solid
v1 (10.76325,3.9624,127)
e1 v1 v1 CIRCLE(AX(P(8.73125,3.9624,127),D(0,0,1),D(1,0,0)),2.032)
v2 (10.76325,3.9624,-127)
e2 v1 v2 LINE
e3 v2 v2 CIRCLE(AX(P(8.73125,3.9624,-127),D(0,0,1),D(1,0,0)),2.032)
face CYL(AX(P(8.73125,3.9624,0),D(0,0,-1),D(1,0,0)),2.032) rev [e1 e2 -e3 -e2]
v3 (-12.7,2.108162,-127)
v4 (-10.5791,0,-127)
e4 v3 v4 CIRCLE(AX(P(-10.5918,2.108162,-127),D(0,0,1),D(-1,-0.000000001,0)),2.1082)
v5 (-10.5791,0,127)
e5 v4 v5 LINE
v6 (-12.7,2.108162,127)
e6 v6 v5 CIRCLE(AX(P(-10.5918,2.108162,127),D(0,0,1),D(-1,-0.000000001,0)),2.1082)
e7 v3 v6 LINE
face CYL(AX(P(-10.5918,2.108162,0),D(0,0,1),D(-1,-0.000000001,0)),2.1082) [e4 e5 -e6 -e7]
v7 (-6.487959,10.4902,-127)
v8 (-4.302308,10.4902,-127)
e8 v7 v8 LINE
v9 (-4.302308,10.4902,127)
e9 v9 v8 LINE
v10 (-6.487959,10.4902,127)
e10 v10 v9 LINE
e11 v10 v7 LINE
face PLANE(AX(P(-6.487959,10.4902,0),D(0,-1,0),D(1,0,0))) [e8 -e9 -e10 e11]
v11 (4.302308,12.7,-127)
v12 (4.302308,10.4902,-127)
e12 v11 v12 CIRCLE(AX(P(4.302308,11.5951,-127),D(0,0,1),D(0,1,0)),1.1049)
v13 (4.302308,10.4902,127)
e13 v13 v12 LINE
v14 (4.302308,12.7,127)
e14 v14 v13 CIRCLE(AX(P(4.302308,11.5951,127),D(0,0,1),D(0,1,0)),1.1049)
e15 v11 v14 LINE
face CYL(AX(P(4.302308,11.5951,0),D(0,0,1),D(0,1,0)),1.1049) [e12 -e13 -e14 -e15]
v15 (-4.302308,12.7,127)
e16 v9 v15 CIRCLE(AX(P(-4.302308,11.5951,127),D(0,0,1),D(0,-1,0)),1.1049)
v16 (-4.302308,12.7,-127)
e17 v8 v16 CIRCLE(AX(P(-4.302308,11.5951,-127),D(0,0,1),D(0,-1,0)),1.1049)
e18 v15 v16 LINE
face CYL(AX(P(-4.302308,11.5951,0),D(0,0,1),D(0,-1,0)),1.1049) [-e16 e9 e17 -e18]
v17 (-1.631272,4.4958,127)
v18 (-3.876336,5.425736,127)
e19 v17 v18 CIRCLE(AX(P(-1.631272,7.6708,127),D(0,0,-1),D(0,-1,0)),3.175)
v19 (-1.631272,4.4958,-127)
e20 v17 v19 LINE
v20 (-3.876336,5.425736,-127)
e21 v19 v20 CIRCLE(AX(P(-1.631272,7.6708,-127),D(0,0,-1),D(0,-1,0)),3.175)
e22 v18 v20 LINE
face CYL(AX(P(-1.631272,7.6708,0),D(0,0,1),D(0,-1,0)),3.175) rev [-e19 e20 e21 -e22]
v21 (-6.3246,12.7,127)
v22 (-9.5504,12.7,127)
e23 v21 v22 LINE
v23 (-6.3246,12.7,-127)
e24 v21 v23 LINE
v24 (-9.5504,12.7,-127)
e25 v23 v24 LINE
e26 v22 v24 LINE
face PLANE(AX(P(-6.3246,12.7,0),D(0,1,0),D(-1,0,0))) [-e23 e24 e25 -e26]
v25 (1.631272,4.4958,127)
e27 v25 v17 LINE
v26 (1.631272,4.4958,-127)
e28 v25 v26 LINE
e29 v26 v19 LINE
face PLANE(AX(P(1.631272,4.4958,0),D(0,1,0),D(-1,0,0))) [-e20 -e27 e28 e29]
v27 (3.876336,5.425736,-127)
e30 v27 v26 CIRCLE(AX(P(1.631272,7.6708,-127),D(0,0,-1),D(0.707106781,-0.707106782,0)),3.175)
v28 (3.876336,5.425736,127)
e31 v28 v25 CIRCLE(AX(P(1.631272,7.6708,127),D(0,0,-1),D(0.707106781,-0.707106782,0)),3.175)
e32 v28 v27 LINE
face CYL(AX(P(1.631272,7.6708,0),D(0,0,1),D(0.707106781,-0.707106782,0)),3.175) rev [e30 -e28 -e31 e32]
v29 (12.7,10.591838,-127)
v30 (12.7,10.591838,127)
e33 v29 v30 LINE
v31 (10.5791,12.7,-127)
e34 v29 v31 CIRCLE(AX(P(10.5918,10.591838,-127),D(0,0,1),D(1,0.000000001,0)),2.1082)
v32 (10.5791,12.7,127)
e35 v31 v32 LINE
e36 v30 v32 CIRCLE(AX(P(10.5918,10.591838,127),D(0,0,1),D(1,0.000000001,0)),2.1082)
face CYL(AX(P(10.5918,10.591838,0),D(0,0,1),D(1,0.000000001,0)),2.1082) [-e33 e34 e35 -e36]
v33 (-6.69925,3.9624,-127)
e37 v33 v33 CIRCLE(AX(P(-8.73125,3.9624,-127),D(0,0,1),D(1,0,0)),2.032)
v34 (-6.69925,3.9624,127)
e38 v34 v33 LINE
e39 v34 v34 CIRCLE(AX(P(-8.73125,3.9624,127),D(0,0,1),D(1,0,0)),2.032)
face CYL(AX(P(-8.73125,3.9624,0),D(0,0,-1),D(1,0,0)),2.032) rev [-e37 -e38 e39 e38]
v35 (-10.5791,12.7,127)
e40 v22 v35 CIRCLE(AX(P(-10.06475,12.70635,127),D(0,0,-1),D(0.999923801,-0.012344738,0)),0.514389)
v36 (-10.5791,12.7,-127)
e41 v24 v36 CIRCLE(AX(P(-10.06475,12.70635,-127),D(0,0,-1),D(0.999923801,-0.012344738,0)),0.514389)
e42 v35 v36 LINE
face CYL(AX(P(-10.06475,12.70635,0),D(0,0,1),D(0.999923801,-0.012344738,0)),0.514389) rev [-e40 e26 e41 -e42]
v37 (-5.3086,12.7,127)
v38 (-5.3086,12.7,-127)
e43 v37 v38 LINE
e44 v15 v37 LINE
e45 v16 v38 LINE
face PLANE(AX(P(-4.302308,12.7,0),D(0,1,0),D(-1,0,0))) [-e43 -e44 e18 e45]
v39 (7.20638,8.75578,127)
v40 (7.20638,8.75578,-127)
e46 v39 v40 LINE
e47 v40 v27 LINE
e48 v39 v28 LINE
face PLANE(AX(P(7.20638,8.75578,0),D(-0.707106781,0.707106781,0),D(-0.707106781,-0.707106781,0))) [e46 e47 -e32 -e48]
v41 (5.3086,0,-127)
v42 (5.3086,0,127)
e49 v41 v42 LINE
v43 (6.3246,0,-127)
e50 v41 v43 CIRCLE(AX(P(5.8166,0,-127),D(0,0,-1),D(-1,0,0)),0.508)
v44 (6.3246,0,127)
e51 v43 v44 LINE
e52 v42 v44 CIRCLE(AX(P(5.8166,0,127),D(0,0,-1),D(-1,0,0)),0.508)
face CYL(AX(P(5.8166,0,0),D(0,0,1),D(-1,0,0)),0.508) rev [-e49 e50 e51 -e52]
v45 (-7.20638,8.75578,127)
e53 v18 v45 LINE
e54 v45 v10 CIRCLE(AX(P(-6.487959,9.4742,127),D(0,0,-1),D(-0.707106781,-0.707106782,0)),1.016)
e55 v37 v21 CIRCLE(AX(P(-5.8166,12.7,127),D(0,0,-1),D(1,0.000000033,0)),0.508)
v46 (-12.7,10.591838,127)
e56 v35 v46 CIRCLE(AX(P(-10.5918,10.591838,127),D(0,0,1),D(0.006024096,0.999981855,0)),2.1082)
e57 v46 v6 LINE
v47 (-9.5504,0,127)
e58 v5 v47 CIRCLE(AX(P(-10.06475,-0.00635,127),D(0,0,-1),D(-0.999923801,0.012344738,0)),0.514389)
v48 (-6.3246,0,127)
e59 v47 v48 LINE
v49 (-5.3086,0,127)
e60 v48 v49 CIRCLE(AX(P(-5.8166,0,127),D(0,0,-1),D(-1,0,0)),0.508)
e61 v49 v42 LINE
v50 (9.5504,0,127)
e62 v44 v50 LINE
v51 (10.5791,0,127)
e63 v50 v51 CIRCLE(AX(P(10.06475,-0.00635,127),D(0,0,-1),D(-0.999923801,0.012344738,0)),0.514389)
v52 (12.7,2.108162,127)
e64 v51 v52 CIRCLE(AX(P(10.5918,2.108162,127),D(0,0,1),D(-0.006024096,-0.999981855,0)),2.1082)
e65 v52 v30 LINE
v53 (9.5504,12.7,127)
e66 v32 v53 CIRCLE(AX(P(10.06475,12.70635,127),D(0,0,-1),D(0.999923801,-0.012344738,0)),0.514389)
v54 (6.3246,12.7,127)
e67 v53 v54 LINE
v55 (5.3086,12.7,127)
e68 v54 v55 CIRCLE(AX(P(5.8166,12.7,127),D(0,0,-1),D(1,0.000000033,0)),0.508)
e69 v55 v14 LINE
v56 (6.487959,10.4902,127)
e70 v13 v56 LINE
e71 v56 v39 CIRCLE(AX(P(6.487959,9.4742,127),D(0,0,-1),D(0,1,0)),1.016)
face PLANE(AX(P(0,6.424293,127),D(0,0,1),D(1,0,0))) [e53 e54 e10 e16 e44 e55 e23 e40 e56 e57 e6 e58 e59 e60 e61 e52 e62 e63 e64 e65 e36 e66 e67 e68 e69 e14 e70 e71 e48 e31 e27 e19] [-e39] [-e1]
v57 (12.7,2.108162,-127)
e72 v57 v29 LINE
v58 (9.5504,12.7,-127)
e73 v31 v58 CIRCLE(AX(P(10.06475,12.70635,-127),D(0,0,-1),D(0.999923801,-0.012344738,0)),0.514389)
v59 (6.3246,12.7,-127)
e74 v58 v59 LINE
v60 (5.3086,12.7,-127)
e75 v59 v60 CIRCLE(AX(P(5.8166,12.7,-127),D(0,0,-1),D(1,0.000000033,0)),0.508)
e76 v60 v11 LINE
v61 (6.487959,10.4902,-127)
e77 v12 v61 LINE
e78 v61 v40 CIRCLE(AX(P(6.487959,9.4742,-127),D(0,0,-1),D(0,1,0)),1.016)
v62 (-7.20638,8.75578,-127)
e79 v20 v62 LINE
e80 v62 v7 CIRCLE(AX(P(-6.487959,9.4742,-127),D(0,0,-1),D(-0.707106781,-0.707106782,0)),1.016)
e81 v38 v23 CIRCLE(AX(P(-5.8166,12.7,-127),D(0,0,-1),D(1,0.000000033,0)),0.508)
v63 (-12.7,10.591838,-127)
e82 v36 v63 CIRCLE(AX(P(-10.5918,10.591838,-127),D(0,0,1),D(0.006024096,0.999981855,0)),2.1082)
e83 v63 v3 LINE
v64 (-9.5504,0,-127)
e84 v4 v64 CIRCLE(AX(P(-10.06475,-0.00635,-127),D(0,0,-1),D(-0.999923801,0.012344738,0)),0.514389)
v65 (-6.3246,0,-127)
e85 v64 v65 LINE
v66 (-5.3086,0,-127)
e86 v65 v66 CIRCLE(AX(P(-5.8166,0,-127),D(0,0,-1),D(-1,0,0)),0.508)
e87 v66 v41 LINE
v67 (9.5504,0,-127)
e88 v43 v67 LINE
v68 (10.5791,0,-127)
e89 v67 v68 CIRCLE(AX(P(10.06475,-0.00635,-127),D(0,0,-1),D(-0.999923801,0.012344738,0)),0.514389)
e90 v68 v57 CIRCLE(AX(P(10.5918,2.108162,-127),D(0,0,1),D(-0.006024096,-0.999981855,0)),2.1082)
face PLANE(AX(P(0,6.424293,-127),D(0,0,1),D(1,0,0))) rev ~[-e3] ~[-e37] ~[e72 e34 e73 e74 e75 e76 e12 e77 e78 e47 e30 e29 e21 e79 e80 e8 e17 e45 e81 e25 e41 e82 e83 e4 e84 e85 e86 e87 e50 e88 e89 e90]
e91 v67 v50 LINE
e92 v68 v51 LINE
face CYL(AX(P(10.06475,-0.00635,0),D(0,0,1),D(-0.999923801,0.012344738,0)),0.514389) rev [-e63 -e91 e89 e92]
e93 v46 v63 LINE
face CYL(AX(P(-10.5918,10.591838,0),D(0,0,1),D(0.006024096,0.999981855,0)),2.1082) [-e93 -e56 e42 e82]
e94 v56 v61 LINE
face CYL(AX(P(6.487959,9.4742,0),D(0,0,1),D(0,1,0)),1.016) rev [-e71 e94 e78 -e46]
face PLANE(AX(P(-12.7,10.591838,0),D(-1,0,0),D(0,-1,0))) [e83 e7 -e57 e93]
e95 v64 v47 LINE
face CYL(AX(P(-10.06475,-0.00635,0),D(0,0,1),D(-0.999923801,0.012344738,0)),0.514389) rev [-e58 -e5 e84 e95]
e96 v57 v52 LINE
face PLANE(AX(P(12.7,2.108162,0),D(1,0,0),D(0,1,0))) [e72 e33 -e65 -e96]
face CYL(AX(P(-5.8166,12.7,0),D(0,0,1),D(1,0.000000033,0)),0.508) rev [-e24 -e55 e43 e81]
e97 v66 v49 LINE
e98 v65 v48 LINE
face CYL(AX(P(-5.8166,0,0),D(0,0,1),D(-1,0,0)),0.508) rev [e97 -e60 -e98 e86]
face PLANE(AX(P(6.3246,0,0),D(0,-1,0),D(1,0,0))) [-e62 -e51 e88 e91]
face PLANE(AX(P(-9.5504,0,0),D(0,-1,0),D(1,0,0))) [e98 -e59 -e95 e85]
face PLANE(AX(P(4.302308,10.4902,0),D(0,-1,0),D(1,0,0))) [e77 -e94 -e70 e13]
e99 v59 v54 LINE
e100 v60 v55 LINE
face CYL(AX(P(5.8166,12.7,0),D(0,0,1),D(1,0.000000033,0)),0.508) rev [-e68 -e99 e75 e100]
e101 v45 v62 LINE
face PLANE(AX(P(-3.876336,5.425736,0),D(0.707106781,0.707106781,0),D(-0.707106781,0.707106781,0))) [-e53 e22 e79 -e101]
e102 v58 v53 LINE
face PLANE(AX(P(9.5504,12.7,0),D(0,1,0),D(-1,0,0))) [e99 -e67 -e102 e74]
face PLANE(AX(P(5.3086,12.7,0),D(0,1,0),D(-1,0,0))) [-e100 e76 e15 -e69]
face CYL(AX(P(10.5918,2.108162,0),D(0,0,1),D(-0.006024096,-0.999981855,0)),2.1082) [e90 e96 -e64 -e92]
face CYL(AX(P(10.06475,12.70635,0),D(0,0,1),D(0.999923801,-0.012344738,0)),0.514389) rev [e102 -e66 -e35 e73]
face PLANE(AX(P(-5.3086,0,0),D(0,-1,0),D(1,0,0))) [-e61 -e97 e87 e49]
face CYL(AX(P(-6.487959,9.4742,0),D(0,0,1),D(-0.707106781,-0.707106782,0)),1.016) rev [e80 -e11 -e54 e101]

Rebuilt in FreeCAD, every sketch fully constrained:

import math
import FreeCAD as App
import Part
import Sketcher
Q = App.Units.Quantity

doc = App.newDocument("Part")
body = doc.addObject("PartDesign::Body", "Body")

# Sketch on XY plane
sketch1 = doc.addObject("Sketcher::SketchObject", "Sketch")
body.addObject(sketch1)
sketch1.AttachmentSupport = (doc.XY_Plane, [""])
sketch1.MapMode = "FlatFace"
sketch1.addGeometry(Part.LineSegment(App.Vector(-12.7, 10.591838, 0), App.Vector(-12.7, 2.108162, 0)), False)
sketch1.addGeometry(Part.ArcOfCircle(Part.Circle(App.Vector(-10.5918, 2.108162, 0), App.Vector(0, 0, 1), 2.1082), math.radians(-180), math.radians(-89.654843)), False)
sketch1.addGeometry(Part.ArcOfCircle(Part.Circle(App.Vector(-10.06475, -0.00635, 0), App.Vector(0, 0, 1), 0.514389), math.radians(0.707319), math.radians(179.292681)), False)
sketch1.addGeometry(Part.LineSegment(App.Vector(-9.5504, 0, 0), App.Vector(-6.3246, 0, 0)), False)
sketch1.addGeometry(Part.ArcOfCircle(Part.Circle(App.Vector(-5.8166, 0, 0), App.Vector(0, 0, 1), 0.508), math.radians(0), math.radians(180)), False)
sketch1.addGeometry(Part.LineSegment(App.Vector(-5.3086, 0, 0), App.Vector(5.3086, 0, 0)), False)
sketch1.addGeometry(Part.ArcOfCircle(Part.Circle(App.Vector(5.8166, 0, 0), App.Vector(0, 0, 1), 0.508), math.radians(0), math.radians(180)), False)
sketch1.addGeometry(Part.LineSegment(App.Vector(6.3246, 0, 0), App.Vector(9.5504, 0, 0)), False)
sketch1.addGeometry(Part.ArcOfCircle(Part.Circle(App.Vector(10.06475, -0.00635, 0), App.Vector(0, 0, 1), 0.514389), math.radians(0.707319), math.radians(179.292681)), False)
sketch1.addGeometry(Part.ArcOfCircle(Part.Circle(App.Vector(10.5918, 2.108162, 0), App.Vector(0, 0, 1), 2.1082), math.radians(-90.345157), math.radians(0)), False)
sketch1.addGeometry(Part.LineSegment(App.Vector(12.7, 2.108162, 0), App.Vector(12.7, 10.591838, 0)), False)
sketch1.addGeometry(Part.ArcOfCircle(Part.Circle(App.Vector(10.5918, 10.591838, 0), App.Vector(0, 0, 1), 2.1082), math.radians(0), math.radians(90.345157)), False)
sketch1.addGeometry(Part.ArcOfCircle(Part.Circle(App.Vector(10.06475, 12.70635, 0), App.Vector(0, 0, 1), 0.514389), math.radians(-179.292681), math.radians(-0.707319)), False)
sketch1.addGeometry(Part.LineSegment(App.Vector(9.5504, 12.7, 0), App.Vector(6.3246, 12.7, 0)), False)
sketch1.addGeometry(Part.ArcOfCircle(Part.Circle(App.Vector(5.8166, 12.7, 0), App.Vector(0, 0, 1), 0.508), math.radians(179.999998), math.radians(360.000002)), False)
sketch1.addGeometry(Part.LineSegment(App.Vector(5.3086, 12.7, 0), App.Vector(4.302308, 12.7, 0)), False)
sketch1.addGeometry(Part.ArcOfCircle(Part.Circle(App.Vector(4.302308, 11.5951, 0), App.Vector(0, 0, 1), 1.1049), math.radians(90), math.radians(270)), False)
sketch1.addGeometry(Part.LineSegment(App.Vector(4.302308, 10.4902, 0), App.Vector(6.487959, 10.4902, 0)), False)
sketch1.addGeometry(Part.ArcOfCircle(Part.Circle(App.Vector(6.487959, 9.4742, 0), App.Vector(0, 0, 1), 1.016), math.radians(-45), math.radians(90)), False)
sketch1.addGeometry(Part.LineSegment(App.Vector(7.20638, 8.75578, 0), App.Vector(3.876336, 5.425736, 0)), False)
sketch1.addGeometry(Part.ArcOfCircle(Part.Circle(App.Vector(1.631272, 7.6708, 0), App.Vector(0, 0, 1), 3.175), math.radians(-90), math.radians(-45)), False)
sketch1.addGeometry(Part.LineSegment(App.Vector(1.631272, 4.4958, 0), App.Vector(-1.631272, 4.4958, 0)), False)
sketch1.addGeometry(Part.ArcOfCircle(Part.Circle(App.Vector(-1.631272, 7.6708, 0), App.Vector(0, 0, 1), 3.175), math.radians(-135), math.radians(-90)), False)
sketch1.addGeometry(Part.LineSegment(App.Vector(-3.876336, 5.425736, 0), App.Vector(-7.20638, 8.75578, 0)), False)
sketch1.addGeometry(Part.ArcOfCircle(Part.Circle(App.Vector(-6.487959, 9.4742, 0), App.Vector(0, 0, 1), 1.016), math.radians(90), math.radians(225)), False)
sketch1.addGeometry(Part.LineSegment(App.Vector(-6.487959, 10.4902, 0), App.Vector(-4.302308, 10.4902, 0)), False)
sketch1.addGeometry(Part.ArcOfCircle(Part.Circle(App.Vector(-4.302308, 11.5951, 0), App.Vector(0, 0, 1), 1.1049), math.radians(-90), math.radians(90)), False)
sketch1.addGeometry(Part.LineSegment(App.Vector(-4.302308, 12.7, 0), App.Vector(-5.3086, 12.7, 0)), False)
sketch1.addGeometry(Part.ArcOfCircle(Part.Circle(App.Vector(-5.8166, 12.7, 0), App.Vector(0, 0, 1), 0.508), math.radians(179.999998), math.radians(360.000002)), False)
sketch1.addGeometry(Part.LineSegment(App.Vector(-6.3246, 12.7, 0), App.Vector(-9.5504, 12.7, 0)), False)
sketch1.addGeometry(Part.ArcOfCircle(Part.Circle(App.Vector(-10.06475, 12.70635, 0), App.Vector(0, 0, 1), 0.514389), math.radians(-179.292681), math.radians(-0.707319)), False)
sketch1.addGeometry(Part.ArcOfCircle(Part.Circle(App.Vector(-10.5918, 10.591838, 0), App.Vector(0, 0, 1), 2.1082), math.radians(89.654843), math.radians(180)), False)
sketch1.addGeometry(Part.Circle(App.Vector(-8.73125, 3.9624, 0), App.Vector(0, 0, 1), 2.032), False)
sketch1.addGeometry(Part.Circle(App.Vector(8.73125, 3.9624, 0), App.Vector(0, 0, 1), 2.032), False)
sketch1.addConstraint(Sketcher.Constraint("Tangent", 0, 2, 1, 1))
sketch1.addConstraint(Sketcher.Constraint("Coincident", 1, 2, 2, 2))
sketch1.addConstraint(Sketcher.Constraint("Coincident", 2, 1, 3, 1))
sketch1.addConstraint(Sketcher.Constraint("Coincident", 3, 2, 4, 2))
sketch1.addConstraint(Sketcher.Constraint("Coincident", 4, 1, 5, 1))
sketch1.addConstraint(Sketcher.Constraint("Coincident", 5, 2, 6, 2))
sketch1.addConstraint(Sketcher.Constraint("Coincident", 6, 1, 7, 1))
sketch1.addConstraint(Sketcher.Constraint("Coincident", 7, 2, 8, 2))
sketch1.addConstraint(Sketcher.Constraint("Coincident", 8, 1, 9, 1))
sketch1.addConstraint(Sketcher.Constraint("Tangent", 9, 2, 10, 1))
sketch1.addConstraint(Sketcher.Constraint("Tangent", 10, 2, 11, 1))
sketch1.addConstraint(Sketcher.Constraint("Coincident", 11, 2, 12, 2))
sketch1.addConstraint(Sketcher.Constraint("Coincident", 12, 1, 13, 1))
sketch1.addConstraint(Sketcher.Constraint("Coincident", 13, 2, 14, 2))
sketch1.addConstraint(Sketcher.Constraint("Coincident", 14, 1, 15, 1))
sketch1.addConstraint(Sketcher.Constraint("Tangent", 15, 2, 16, 1))
sketch1.addConstraint(Sketcher.Constraint("Tangent", 16, 2, 17, 1))
sketch1.addConstraint(Sketcher.Constraint("Tangent", 17, 2, 18, 2))
sketch1.addConstraint(Sketcher.Constraint("Tangent", 18, 1, 19, 1))
sketch1.addConstraint(Sketcher.Constraint("Tangent", 19, 2, 20, 2))
sketch1.addConstraint(Sketcher.Constraint("Tangent", 20, 1, 21, 1))
sketch1.addConstraint(Sketcher.Constraint("Tangent", 21, 2, 22, 2))
sketch1.addConstraint(Sketcher.Constraint("Tangent", 22, 1, 23, 1))
sketch1.addConstraint(Sketcher.Constraint("Tangent", 23, 2, 24, 2))
sketch1.addConstraint(Sketcher.Constraint("Tangent", 24, 1, 25, 1))
sketch1.addConstraint(Sketcher.Constraint("Tangent", 25, 2, 26, 1))
sketch1.addConstraint(Sketcher.Constraint("Tangent", 26, 2, 27, 1))
sketch1.addConstraint(Sketcher.Constraint("Coincident", 27, 2, 28, 2))
sketch1.addConstraint(Sketcher.Constraint("Coincident", 28, 1, 29, 1))
sketch1.addConstraint(Sketcher.Constraint("Coincident", 29, 2, 30, 2))
sketch1.addConstraint(Sketcher.Constraint("Coincident", 30, 1, 31, 1))
sketch1.addConstraint(Sketcher.Constraint("Tangent", 31, 2, 0, 1))
sketch1.addConstraint(Sketcher.Constraint("Vertical", 0))
sketch1.addConstraint(Sketcher.Constraint("Horizontal", 3))
sketch1.addConstraint(Sketcher.Constraint("Horizontal", 5))
sketch1.addConstraint(Sketcher.Constraint("Horizontal", 7))
sketch1.addConstraint(Sketcher.Constraint("Vertical", 10))
sketch1.addConstraint(Sketcher.Constraint("Horizontal", 13))
sketch1.addConstraint(Sketcher.Constraint("Horizontal", 15))
sketch1.addConstraint(Sketcher.Constraint("Horizontal", 17))
sketch1.addConstraint(Sketcher.Constraint("Horizontal", 21))
sketch1.addConstraint(Sketcher.Constraint("Horizontal", 25))
sketch1.addConstraint(Sketcher.Constraint("Horizontal", 27))
sketch1.addConstraint(Sketcher.Constraint("Horizontal", 29))
sketch1.addConstraint(Sketcher.Constraint("Equal", 4, 6))
sketch1.addConstraint(Sketcher.Constraint("Equal", 2, 8))
sketch1.addConstraint(Sketcher.Constraint("Equal", 1, 9))
sketch1.addConstraint(Sketcher.Constraint("Equal", 9, 11))
sketch1.addConstraint(Sketcher.Constraint("Equal", 8, 12))
sketch1.addConstraint(Sketcher.Constraint("Equal", 6, 14))
sketch1.addConstraint(Sketcher.Constraint("Equal", 20, 22))
sketch1.addConstraint(Sketcher.Constraint("Equal", 18, 24))
sketch1.addConstraint(Sketcher.Constraint("Equal", 16, 26))
sketch1.addConstraint(Sketcher.Constraint("Equal", 14, 28))
sketch1.addConstraint(Sketcher.Constraint("Equal", 12, 30))
sketch1.addConstraint(Sketcher.Constraint("Equal", 11, 31))
sketch1.addConstraint(Sketcher.Constraint("Equal", 32, 33))
sketch1.addConstraint(Sketcher.Constraint("Symmetric", 4, 3, 6, 3, -1, 1))
sketch1.addConstraint(Sketcher.Constraint("Symmetric", 2, 1, 7, 2, -1, 1))
sketch1.addConstraint(Sketcher.Constraint("Symmetric", 1, 2, 8, 1, -1, 1))
sketch1.addConstraint(Sketcher.Constraint("Symmetric", 2, 3, 8, 3, -2))
sketch1.addConstraint(Sketcher.Constraint("Symmetric", 18, 3, 24, 3, -2))
sketch1.addConstraint(Sketcher.Constraint("Symmetric", 14, 3, 28, 3, -2))
sketch1.addConstraint(Sketcher.Constraint("Symmetric", 12, 3, 30, 3, -2))
sketch1.addConstraint(Sketcher.Constraint("Symmetric", 11, 3, 31, 3, -2))
sketch1.addConstraint(Sketcher.Constraint("Symmetric", 32, 3, 33, 3, -2))
sketch1.addConstraint(Sketcher.Constraint("PointOnObject", 4, 3, -1))
sketch1.addConstraint(Sketcher.Constraint("PointOnObject", 4, 1, -1))
sketch1.addConstraint(Sketcher.Constraint("Perpendicular", 19, 23))
sketch1.addConstraint(Sketcher.Constraint("Horizontal", 28, 3, 11, 2))
sketch1.addConstraint(Sketcher.Constraint("Horizontal", 11, 2, 12, 1))
sketch1.addConstraint(Sketcher.Constraint("Horizontal", 13, 2, 14, 1))
sketch1.addConstraint(Sketcher.Constraint("Horizontal", 19, 2, 22, 1))
sketch1.addConstraint(Sketcher.Constraint("Horizontal", 27, 2, 28, 1))
sketch1.addConstraint(Sketcher.Constraint("Vertical", 8, 3, 12, 3))
sketch1.addConstraint(Sketcher.Constraint("Vertical", 6, 3, 14, 3))
sketch1.addConstraint(Sketcher.Constraint("Vertical", 7, 2, 12, 1))
sketch1.addConstraint(Sketcher.Constraint("Equal", 17, 25))
sketch1.addConstraint(Sketcher.Constraint("Diameter", 32, Q("0.16 in")))
sketch1.addConstraint(Sketcher.Constraint("Radius", 4, Q("0.02 in")))
sketch1.addConstraint(Sketcher.Constraint("Radius", 18, Q("0.04 in")))
sketch1.addConstraint(Sketcher.Constraint("Radius", 1, Q("0.083 in")))
sketch1.addConstraint(Sketcher.Constraint("Radius", 20, Q("0.125 in")))
sketch1.addConstraint(Sketcher.Constraint("DistanceY", -1, 1, 14, 3, Q("0.5 in")))
sketch1.addConstraint(Sketcher.Constraint("DistanceX", 0, 2, -1, 1, Q("0.5 in")))
sketch1.addConstraint(Sketcher.Constraint("Radius", 16, Q("0.0435 in")))
sketch1.addConstraint(Sketcher.Constraint("DistanceX", 3, 1, 3, 2, Q("0.127 in")))
sketch1.addConstraint(Sketcher.Constraint("DistanceX", 5, 1, 5, 2, Q("0.418 in")))
sketch1.addConstraint(Sketcher.Constraint("DistanceY", -1, 1, 20, 3, Q("0.302 in")))
sketch1.addConstraint(Sketcher.Constraint("DistanceX", 32, 3, -1, 1, Q("0.34375 in")))
sketch1.addConstraint(Sketcher.Constraint("DistanceY", -1, 1, 32, 3, Q("0.156 in")))
sketch1.addConstraint(Sketcher.Constraint("Radius", 2, Q("0.514389 mm")))
sketch1.addConstraint(Sketcher.Constraint("DistanceY", 2, 3, 32, 3, Q("0.15625 in")))
sketch1.addConstraint(Sketcher.Constraint("DistanceX", 17, 1, 17, 2, Q("2.185651 mm")))
sketch1.addConstraint(Sketcher.Constraint("DistanceX", 15, 2, 15, 1, Q("1.006292 mm")))
pad1 = doc.addObject("PartDesign::Pad", "Pad")
body.addObject(pad1)
pad1.Profile = sketch1
pad1.Length = Q("10 in")
pad1.Midplane = True

doc.recompute()
